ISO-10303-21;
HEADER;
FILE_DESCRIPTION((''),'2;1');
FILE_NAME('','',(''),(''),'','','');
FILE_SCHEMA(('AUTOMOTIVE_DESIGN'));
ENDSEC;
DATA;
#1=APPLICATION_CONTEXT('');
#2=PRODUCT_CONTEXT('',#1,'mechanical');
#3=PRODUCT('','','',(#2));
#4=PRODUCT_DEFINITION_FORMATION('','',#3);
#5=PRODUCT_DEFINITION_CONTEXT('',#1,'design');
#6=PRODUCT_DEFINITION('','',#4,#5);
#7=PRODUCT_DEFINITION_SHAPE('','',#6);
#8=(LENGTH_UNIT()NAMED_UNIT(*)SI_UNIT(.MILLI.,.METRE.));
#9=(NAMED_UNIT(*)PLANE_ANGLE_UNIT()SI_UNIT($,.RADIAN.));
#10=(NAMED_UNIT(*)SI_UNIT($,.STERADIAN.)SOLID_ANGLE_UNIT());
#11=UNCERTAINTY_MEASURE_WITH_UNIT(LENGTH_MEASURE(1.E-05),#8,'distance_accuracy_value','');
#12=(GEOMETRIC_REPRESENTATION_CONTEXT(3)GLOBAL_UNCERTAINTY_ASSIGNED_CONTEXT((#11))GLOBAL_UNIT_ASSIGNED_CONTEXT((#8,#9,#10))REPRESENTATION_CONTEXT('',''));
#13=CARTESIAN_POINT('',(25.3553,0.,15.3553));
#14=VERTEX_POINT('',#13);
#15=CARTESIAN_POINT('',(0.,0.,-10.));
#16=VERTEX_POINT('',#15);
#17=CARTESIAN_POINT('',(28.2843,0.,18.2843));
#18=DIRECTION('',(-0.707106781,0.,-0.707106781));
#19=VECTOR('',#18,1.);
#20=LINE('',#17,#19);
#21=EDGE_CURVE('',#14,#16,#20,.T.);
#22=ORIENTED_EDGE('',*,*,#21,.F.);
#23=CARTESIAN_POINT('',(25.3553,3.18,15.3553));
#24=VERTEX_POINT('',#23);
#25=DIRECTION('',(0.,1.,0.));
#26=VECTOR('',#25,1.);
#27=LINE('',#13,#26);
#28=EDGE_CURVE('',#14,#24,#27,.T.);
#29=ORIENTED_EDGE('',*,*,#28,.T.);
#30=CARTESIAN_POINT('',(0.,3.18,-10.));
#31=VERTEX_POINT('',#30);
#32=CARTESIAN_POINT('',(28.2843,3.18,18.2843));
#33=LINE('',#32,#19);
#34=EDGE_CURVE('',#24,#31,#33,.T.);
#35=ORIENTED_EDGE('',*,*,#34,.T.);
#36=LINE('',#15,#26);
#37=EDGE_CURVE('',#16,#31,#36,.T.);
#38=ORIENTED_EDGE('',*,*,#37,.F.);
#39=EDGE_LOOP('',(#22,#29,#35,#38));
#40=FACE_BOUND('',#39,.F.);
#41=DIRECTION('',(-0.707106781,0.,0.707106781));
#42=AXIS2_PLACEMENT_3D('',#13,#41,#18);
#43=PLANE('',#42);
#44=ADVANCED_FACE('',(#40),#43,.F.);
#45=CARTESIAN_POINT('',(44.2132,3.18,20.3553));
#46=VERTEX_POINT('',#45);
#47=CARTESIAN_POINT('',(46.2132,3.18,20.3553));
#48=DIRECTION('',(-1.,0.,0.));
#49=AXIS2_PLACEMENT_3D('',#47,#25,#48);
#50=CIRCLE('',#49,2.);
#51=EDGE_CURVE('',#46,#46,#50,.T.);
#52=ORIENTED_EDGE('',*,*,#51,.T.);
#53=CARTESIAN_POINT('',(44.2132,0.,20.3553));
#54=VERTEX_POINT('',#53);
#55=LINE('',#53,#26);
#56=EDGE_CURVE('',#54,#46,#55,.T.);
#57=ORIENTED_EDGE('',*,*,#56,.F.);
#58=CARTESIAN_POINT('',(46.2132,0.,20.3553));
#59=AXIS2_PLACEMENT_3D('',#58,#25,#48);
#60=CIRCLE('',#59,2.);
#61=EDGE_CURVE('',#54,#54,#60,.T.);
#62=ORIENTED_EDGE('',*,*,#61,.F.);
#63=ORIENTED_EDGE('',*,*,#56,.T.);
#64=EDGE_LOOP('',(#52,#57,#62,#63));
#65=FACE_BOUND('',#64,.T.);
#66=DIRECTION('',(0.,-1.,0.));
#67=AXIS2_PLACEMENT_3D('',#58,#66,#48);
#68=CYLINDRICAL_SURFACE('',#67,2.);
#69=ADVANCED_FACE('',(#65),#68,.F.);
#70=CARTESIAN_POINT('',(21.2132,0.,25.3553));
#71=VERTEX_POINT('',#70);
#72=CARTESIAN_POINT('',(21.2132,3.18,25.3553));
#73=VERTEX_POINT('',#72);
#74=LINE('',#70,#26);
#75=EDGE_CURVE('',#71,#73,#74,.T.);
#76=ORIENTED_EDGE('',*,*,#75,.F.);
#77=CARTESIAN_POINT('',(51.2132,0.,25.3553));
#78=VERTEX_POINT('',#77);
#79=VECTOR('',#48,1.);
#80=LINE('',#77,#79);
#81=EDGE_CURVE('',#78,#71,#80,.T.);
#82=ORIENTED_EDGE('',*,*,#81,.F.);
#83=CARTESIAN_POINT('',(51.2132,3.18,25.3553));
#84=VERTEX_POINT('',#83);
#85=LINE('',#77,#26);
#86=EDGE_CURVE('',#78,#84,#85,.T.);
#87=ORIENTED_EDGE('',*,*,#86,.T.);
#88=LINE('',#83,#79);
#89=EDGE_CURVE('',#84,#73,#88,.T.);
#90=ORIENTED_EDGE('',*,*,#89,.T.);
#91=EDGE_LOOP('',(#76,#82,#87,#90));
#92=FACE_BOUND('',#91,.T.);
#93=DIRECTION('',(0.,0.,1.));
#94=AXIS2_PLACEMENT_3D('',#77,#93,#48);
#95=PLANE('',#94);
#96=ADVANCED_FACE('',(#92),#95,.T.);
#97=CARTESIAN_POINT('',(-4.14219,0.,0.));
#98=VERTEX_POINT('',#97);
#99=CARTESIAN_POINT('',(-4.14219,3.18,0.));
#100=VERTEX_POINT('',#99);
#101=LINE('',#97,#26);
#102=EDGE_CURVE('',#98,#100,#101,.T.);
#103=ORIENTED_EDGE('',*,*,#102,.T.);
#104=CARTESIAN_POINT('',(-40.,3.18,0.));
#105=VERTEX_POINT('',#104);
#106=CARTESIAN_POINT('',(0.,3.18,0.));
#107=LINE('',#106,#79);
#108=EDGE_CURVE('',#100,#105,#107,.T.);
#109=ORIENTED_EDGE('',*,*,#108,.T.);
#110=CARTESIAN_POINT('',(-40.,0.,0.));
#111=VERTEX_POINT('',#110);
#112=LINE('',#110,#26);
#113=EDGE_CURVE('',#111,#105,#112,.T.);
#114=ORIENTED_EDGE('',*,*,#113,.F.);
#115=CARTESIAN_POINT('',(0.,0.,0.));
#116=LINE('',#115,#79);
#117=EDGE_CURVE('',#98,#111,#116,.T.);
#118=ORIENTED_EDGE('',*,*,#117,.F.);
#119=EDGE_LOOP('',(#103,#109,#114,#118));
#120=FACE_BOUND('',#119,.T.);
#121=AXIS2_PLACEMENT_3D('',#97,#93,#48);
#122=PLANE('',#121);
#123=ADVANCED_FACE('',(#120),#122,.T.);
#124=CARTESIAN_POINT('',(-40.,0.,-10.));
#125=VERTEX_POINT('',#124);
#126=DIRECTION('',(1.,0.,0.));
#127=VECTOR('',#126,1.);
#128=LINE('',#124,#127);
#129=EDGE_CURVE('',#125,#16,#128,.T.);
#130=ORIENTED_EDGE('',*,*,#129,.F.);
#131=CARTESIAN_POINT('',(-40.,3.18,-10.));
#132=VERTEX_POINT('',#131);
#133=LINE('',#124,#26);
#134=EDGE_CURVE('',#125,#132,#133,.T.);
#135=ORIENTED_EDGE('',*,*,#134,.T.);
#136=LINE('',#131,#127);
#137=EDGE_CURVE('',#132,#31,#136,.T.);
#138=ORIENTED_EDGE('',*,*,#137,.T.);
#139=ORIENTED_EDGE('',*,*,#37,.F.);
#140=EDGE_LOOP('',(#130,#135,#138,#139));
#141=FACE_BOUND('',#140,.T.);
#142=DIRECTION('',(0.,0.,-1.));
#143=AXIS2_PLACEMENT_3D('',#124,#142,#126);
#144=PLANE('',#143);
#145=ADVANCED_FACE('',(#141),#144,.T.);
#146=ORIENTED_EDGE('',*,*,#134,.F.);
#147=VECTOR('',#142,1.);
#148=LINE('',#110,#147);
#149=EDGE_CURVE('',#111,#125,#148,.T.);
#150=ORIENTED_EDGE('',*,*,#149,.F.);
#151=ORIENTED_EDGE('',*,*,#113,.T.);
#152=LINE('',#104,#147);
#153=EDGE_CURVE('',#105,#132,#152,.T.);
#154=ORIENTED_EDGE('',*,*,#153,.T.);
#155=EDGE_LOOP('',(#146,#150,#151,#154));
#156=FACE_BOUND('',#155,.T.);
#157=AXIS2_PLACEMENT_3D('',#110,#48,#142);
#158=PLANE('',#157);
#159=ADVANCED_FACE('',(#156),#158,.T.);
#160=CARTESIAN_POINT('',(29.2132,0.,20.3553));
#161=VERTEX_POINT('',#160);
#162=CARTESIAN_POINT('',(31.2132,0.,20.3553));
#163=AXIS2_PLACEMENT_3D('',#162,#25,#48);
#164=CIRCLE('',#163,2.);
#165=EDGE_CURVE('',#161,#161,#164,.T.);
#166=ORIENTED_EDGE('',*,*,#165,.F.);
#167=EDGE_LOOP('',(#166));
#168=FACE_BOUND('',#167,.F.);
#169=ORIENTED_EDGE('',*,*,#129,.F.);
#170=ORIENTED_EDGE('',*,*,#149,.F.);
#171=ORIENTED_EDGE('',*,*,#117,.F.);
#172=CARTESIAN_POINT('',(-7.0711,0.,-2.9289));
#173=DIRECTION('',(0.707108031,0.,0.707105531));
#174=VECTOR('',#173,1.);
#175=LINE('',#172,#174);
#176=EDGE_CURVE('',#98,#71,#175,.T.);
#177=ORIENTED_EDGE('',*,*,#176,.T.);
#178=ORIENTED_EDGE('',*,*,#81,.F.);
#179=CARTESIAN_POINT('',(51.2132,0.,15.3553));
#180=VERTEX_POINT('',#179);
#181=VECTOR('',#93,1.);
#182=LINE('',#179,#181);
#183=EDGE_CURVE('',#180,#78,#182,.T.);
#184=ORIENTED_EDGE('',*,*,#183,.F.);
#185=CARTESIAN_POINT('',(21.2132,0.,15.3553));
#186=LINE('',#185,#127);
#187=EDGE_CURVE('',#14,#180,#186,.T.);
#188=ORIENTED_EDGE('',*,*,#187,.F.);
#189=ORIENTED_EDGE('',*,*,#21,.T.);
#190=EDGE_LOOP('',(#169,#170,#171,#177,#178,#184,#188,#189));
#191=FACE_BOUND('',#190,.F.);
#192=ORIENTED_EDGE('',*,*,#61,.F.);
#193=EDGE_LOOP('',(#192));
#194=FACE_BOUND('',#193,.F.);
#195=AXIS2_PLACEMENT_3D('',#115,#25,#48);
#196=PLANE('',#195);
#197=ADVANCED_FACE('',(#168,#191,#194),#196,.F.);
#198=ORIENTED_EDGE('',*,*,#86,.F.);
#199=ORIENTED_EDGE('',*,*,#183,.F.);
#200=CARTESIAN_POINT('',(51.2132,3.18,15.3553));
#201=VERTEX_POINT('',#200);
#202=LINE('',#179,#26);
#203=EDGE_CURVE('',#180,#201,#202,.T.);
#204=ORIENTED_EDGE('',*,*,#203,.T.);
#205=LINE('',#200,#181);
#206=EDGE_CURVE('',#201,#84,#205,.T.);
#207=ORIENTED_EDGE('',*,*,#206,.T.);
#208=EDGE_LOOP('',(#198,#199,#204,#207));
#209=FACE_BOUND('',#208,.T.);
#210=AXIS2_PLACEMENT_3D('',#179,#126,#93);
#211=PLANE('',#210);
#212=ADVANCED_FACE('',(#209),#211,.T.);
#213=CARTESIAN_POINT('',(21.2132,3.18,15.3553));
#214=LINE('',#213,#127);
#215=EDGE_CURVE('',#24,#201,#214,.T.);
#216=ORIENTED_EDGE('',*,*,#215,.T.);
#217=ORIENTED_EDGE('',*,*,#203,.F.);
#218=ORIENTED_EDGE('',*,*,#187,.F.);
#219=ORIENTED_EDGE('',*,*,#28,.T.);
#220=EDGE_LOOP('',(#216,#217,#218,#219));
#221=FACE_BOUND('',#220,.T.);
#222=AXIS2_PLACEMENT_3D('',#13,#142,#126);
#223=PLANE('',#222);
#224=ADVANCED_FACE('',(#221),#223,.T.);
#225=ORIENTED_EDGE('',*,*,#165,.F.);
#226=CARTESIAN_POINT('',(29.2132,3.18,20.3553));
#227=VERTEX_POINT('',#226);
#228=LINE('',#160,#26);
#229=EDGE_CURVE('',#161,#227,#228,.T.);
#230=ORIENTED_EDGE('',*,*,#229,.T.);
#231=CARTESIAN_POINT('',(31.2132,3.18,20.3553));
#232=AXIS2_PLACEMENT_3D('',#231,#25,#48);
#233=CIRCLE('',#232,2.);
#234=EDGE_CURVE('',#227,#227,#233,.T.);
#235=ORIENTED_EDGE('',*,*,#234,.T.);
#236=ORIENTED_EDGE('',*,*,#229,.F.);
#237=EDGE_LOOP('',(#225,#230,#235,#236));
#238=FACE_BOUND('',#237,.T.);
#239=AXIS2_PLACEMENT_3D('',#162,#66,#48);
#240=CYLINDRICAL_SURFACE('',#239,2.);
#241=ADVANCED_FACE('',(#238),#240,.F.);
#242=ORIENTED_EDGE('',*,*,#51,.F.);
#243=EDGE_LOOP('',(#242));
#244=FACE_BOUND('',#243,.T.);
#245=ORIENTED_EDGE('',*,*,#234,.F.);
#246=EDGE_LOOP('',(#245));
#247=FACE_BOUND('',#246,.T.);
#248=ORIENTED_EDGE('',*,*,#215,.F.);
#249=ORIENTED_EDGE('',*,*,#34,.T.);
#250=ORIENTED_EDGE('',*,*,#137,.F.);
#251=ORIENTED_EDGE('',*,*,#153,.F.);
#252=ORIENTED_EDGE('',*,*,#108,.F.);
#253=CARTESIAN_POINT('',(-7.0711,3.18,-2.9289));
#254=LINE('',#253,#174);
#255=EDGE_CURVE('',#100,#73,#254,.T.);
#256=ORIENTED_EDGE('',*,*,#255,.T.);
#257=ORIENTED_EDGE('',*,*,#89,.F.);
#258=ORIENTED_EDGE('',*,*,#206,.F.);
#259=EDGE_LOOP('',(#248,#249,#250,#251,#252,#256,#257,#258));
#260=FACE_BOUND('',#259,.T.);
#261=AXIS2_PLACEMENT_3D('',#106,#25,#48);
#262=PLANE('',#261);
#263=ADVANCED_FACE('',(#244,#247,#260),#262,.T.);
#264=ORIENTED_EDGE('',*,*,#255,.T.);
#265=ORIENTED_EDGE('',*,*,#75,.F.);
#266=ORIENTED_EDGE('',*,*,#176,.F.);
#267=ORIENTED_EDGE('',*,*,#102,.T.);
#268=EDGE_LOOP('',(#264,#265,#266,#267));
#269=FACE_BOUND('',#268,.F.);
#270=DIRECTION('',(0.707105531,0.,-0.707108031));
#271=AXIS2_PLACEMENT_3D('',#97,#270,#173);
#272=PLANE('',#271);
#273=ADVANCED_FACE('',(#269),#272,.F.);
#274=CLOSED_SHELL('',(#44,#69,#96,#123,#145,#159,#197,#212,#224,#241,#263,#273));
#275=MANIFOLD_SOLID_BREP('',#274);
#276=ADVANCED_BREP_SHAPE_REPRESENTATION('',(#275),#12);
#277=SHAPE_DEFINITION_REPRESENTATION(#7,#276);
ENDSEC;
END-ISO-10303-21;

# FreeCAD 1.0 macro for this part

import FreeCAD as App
import Part
import Sketcher
from FreeCAD import Vector
Q = App.Units.Quantity

doc = App.newDocument("Part")
body = doc.addObject("PartDesign::Body", "Body")

sketch1 = doc.addObject("Sketcher::SketchObject", "Sketch")
body.addObject(sketch1)
sketch1.AttachmentSupport = (doc.XZ_Plane, [""])
sketch1.MapMode = "FlatFace"
sketch1.addGeometry([
    Part.LineSegment(Vector(25.4, 15.4, 0), Vector(0, -10, 0)),
    Part.LineSegment(Vector(0, -10, 0), Vector(-40, -10, 0)),
    Part.LineSegment(Vector(-40, -10, 0), Vector(-40, 0, 0)),
    Part.LineSegment(Vector(-40, 0, 0), Vector(-4.1, 0, 0)),
    Part.LineSegment(Vector(-4.1, 0, 0), Vector(21.2, 25.4, 0)),
    Part.LineSegment(Vector(21.2, 25.4, 0), Vector(51.2, 25.4, 0)),
    Part.LineSegment(Vector(51.2, 25.4, 0), Vector(51.2, 15.4, 0)),
    Part.LineSegment(Vector(51.2, 15.4, 0), Vector(25.4, 15.4, 0)),
    Part.Circle(Vector(46.2, 20.4, 0), Vector(0, 0, 1), 2),
    Part.Circle(Vector(31.2, 20.4, 0), Vector(0, 0, 1), 2),
], False)
sketch1.addConstraint([
    Sketcher.Constraint("Coincident", 0, 2, 1, 1),
    Sketcher.Constraint("Coincident", 1, 2, 2, 1),
    Sketcher.Constraint("Coincident", 2, 2, 3, 1),
    Sketcher.Constraint("Coincident", 3, 2, 4, 1),
    Sketcher.Constraint("Coincident", 4, 2, 5, 1),
    Sketcher.Constraint("Coincident", 5, 2, 6, 1),
    Sketcher.Constraint("Coincident", 6, 2, 7, 1),
    Sketcher.Constraint("Coincident", 7, 2, 0, 1),
    Sketcher.Constraint("Horizontal", 1),
    Sketcher.Constraint("Vertical", 2),
    Sketcher.Constraint("Horizontal", 3),
    Sketcher.Constraint("Horizontal", 5),
    Sketcher.Constraint("Vertical", 6),
    Sketcher.Constraint("Horizontal", 7),
    Sketcher.Constraint("Equal", 8, 9),
    Sketcher.Constraint("PointOnObject", 0, 2, -2),
    Sketcher.Constraint("PointOnObject", 2, 2, -1),
    Sketcher.Constraint("Parallel", 0, 4),
    Sketcher.Constraint("Horizontal", 8, 3, 9, 3),
    Sketcher.Constraint("Equal", 2, 6),
    Sketcher.Constraint("Diameter", 8, 4.0),
    Sketcher.Constraint("DistanceX", 1, 2, 1, 1, 40.0),
    Sketcher.Constraint("DistanceX", 5, 1, 5, 2, 30.0),
    Sketcher.Constraint("DistanceY", 2, 1, 2, 2, 10.0),
    Sketcher.Constraint("Angle", 0, Q("-135 deg")),
    Sketcher.Constraint("DistanceX", 4, 2, 9, 3, 10.0),
    Sketcher.Constraint("DistanceY", 9, 3, 4, 2, 5.0),
    Sketcher.Constraint("DistanceX", 8, 3, 5, 2, 5.0),
    Sketcher.Constraint("DistanceX", 7, 2, 7, 1, 25.858),
    Sketcher.Constraint("Distance", 0, 35.8578),
])
pad1 = doc.addObject("PartDesign::Pad", "Pad")
body.addObject(pad1)
pad1.Profile = sketch1
pad1.Length = 3.18
pad1.Reversed = True

doc.recompute()
